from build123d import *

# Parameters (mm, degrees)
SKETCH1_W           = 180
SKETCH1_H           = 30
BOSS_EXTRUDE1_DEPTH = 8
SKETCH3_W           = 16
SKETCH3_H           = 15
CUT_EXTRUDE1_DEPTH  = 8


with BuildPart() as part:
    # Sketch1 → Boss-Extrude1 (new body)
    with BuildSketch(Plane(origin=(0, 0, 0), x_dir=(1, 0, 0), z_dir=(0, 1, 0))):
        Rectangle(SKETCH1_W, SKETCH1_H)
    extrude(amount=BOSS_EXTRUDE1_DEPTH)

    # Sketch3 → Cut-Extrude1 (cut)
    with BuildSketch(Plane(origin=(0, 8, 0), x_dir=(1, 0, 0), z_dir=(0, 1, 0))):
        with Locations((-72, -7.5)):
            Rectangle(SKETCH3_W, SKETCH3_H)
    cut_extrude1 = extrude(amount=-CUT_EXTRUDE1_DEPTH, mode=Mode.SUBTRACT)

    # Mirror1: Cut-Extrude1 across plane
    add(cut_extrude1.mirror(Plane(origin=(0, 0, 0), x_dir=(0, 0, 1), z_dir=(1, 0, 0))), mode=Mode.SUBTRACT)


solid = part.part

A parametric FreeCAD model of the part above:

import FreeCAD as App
import Part
import Sketcher
from FreeCAD import Vector
Q = App.Units.Quantity

doc = App.newDocument("Part")
body = doc.addObject("PartDesign::Body", "Body")

# Sketch on XZ plane
sketch1 = body.newObject("Sketcher::SketchObject", "Sketch")
sketch1.AttachmentSupport = (doc.getObject("XZ_Plane"), [""])
sketch1.MapMode = "FlatFace"
sketch1.addGeometry(Part.LineSegment(Vector(-90, -15, 0), Vector(-90, 15, 0)), False)
sketch1.addGeometry(Part.LineSegment(Vector(-90, 15, 0), Vector(90, 15, 0)), False)
sketch1.addGeometry(Part.LineSegment(Vector(90, 15, 0), Vector(90, -15, 0)), False)
sketch1.addGeometry(Part.LineSegment(Vector(90, -15, 0), Vector(-90, -15, 0)), False)
sketch1.addConstraint(Sketcher.Constraint("Coincident", 0, 2, 1, 1))
sketch1.addConstraint(Sketcher.Constraint("Coincident", 1, 2, 2, 1))
sketch1.addConstraint(Sketcher.Constraint("Coincident", 2, 2, 3, 1))
sketch1.addConstraint(Sketcher.Constraint("Coincident", 3, 2, 0, 1))
sketch1.addConstraint(Sketcher.Constraint("Vertical", 0))
sketch1.addConstraint(Sketcher.Constraint("Horizontal", 1))
sketch1.addConstraint(Sketcher.Constraint("Vertical", 2))
sketch1.addConstraint(Sketcher.Constraint("Horizontal", 3))
sketch1.addConstraint(Sketcher.Constraint("Symmetric", 0, 2, 2, 2, -1, 1))
sketch1.addConstraint(Sketcher.Constraint("DistanceX", 1, 1, 1, 2, Q("180 mm")))
sketch1.addConstraint(Sketcher.Constraint("DistanceY", 0, 1, 0, 2, Q("30 mm")))
pad1 = body.newObject("PartDesign::Pad", "Pad")
pad1.Profile = sketch1
pad1.Length = 8
pad1.Reversed = True

# Sketch on XZ plane
sketch2 = body.newObject("Sketcher::SketchObject", "Sketch001")
sketch2.AttachmentSupport = (doc.getObject("XZ_Plane"), [""])
sketch2.MapMode = "FlatFace"
sketch2.AttachmentOffset = App.Placement(Vector(0, 0, -8), App.Rotation())
sketch2.addGeometry(Part.LineSegment(Vector(-80, 0, 0), Vector(-80, 15, 0)), False)
sketch2.addGeometry(Part.LineSegment(Vector(-80, 15, 0), Vector(-64, 15, 0)), False)
sketch2.addGeometry(Part.LineSegment(Vector(-64, 15, 0), Vector(-64, 0, 0)), False)
sketch2.addGeometry(Part.LineSegment(Vector(-64, 0, 0), Vector(-80, 0, 0)), False)
sketch2.addConstraint(Sketcher.Constraint("Coincident", 0, 2, 1, 1))
sketch2.addConstraint(Sketcher.Constraint("Coincident", 1, 2, 2, 1))
sketch2.addConstraint(Sketcher.Constraint("Coincident", 2, 2, 3, 1))
sketch2.addConstraint(Sketcher.Constraint("Coincident", 3, 2, 0, 1))
sketch2.addConstraint(Sketcher.Constraint("Vertical", 0))
sketch2.addConstraint(Sketcher.Constraint("Horizontal", 1))
sketch2.addConstraint(Sketcher.Constraint("Vertical", 2))
sketch2.addConstraint(Sketcher.Constraint("Horizontal", 3))
sketch2.addConstraint(Sketcher.Constraint("PointOnObject", 2, 2, -1))
sketch2.addConstraint(Sketcher.Constraint("DistanceX", 1, 1, 1, 2, Q("16 mm")))
sketch2.addConstraint(Sketcher.Constraint("DistanceY", 0, 1, 0, 2, Q("15 mm")))
sketch2.addConstraint(Sketcher.Constraint("DistanceX", 0, 2, -1, 1, Q("80 mm")))
pocket1 = body.newObject("PartDesign::Pocket", "Pocket")
pocket1.Profile = sketch2
pocket1.Length = 8
pocket1.Reversed = True
doc.recompute()

mirrored = body.newObject("PartDesign::Mirrored", "Mirrored")
mirrored.Originals = [pocket1]
mirrored.MirrorPlane = (doc.getObject("YZ_Plane"), [""])
body.Tip = mirrored

doc.recompute()
